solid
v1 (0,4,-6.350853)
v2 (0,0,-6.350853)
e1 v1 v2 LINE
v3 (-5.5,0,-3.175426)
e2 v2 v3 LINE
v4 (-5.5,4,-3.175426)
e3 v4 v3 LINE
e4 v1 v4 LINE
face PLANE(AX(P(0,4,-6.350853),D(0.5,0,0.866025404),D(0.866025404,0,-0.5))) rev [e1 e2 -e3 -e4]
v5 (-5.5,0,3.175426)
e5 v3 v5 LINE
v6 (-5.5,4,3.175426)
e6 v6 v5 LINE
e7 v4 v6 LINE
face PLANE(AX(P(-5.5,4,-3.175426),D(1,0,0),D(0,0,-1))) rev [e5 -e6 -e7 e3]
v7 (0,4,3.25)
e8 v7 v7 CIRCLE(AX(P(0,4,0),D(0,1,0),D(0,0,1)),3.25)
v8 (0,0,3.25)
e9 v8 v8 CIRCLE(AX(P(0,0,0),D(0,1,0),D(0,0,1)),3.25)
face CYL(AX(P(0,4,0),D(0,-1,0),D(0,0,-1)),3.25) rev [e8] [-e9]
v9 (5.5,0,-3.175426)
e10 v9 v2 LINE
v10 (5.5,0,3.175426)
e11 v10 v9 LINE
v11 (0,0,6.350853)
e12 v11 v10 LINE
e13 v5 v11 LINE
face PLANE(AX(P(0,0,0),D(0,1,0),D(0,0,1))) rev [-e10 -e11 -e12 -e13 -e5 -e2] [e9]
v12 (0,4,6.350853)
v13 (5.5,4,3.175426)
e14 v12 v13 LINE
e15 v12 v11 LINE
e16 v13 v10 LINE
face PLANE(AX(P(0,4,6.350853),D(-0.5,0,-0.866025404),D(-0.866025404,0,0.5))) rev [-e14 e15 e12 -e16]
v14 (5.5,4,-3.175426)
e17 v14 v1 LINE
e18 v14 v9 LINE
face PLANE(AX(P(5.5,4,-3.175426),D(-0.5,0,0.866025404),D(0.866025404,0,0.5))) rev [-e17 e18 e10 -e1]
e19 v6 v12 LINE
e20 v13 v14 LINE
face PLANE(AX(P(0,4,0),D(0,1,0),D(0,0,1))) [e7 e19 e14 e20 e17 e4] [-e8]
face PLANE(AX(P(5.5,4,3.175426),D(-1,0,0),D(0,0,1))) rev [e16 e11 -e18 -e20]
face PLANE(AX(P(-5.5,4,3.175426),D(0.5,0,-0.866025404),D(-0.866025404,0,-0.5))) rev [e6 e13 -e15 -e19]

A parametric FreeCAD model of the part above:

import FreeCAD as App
import Part
import Sketcher
from FreeCAD import Vector
Q = App.Units.Quantity

doc = App.newDocument("Part")
body = doc.addObject("PartDesign::Body", "Body")

# Sketch on XZ plane
sketch1 = body.newObject("Sketcher::SketchObject", "Sketch")
sketch1.AttachmentSupport = (doc.getObject("XZ_Plane"), [""])
sketch1.MapMode = "FlatFace"
sketch1.addGeometry([
    Part.LineSegment(Vector(5.5, -3.175426, 0), Vector(0, -6.350853, 0)),  # 0
    Part.LineSegment(Vector(0, -6.350853, 0), Vector(-5.5, -3.175426, 0)),  # 1
    Part.LineSegment(Vector(-5.5, -3.175426, 0), Vector(-5.5, 3.175426, 0)),  # 2
    Part.LineSegment(Vector(-5.5, 3.175426, 0), Vector(0, 6.350853, 0)),  # 3
    Part.LineSegment(Vector(0, 6.350853, 0), Vector(5.5, 3.175426, 0)),  # 4
    Part.LineSegment(Vector(5.5, 3.175426, 0), Vector(5.5, -3.175426, 0)),  # 5
    Part.Circle(Vector(0, 0, 0), Vector(0, 0, 1), 3.25),  # 6
], False)
sketch1.addConstraint([
    Sketcher.Constraint("Coincident", 0, 2, 1, 1),
    Sketcher.Constraint("Coincident", 1, 2, 2, 1),
    Sketcher.Constraint("Coincident", 2, 2, 3, 1),
    Sketcher.Constraint("Coincident", 3, 2, 4, 1),
    Sketcher.Constraint("Coincident", 4, 2, 5, 1),
    Sketcher.Constraint("Coincident", 5, 2, 0, 1),
    Sketcher.Constraint("Vertical", 2),
    Sketcher.Constraint("Vertical", 5),
    Sketcher.Constraint("Coincident", 6, 3, -1, 1),
    Sketcher.Constraint("Symmetric", 0, 2, 3, 2, -1, 1),
    Sketcher.Constraint("Symmetric", 1, 2, 4, 2, -1, 1),
    Sketcher.Constraint("PointOnObject", 0, 2, -2),
    Sketcher.Constraint("Parallel", 0, 3),
    Sketcher.Constraint("Horizontal", 2, 2, 4, 2),
    Sketcher.Constraint("Diameter", 6, 6.5),
    Sketcher.Constraint("Angle", 0, Q("-150 deg")),
    Sketcher.Constraint("DistanceX", 2, 2, 4, 2, 11.0),
    Sketcher.Constraint("DistanceY", 2, 1, 2, 2, 6.350853),
])
pad1 = body.newObject("PartDesign::Pad", "Pad")
pad1.Profile = sketch1
pad1.Length = 4
pad1.Reversed = True

doc.recompute()
